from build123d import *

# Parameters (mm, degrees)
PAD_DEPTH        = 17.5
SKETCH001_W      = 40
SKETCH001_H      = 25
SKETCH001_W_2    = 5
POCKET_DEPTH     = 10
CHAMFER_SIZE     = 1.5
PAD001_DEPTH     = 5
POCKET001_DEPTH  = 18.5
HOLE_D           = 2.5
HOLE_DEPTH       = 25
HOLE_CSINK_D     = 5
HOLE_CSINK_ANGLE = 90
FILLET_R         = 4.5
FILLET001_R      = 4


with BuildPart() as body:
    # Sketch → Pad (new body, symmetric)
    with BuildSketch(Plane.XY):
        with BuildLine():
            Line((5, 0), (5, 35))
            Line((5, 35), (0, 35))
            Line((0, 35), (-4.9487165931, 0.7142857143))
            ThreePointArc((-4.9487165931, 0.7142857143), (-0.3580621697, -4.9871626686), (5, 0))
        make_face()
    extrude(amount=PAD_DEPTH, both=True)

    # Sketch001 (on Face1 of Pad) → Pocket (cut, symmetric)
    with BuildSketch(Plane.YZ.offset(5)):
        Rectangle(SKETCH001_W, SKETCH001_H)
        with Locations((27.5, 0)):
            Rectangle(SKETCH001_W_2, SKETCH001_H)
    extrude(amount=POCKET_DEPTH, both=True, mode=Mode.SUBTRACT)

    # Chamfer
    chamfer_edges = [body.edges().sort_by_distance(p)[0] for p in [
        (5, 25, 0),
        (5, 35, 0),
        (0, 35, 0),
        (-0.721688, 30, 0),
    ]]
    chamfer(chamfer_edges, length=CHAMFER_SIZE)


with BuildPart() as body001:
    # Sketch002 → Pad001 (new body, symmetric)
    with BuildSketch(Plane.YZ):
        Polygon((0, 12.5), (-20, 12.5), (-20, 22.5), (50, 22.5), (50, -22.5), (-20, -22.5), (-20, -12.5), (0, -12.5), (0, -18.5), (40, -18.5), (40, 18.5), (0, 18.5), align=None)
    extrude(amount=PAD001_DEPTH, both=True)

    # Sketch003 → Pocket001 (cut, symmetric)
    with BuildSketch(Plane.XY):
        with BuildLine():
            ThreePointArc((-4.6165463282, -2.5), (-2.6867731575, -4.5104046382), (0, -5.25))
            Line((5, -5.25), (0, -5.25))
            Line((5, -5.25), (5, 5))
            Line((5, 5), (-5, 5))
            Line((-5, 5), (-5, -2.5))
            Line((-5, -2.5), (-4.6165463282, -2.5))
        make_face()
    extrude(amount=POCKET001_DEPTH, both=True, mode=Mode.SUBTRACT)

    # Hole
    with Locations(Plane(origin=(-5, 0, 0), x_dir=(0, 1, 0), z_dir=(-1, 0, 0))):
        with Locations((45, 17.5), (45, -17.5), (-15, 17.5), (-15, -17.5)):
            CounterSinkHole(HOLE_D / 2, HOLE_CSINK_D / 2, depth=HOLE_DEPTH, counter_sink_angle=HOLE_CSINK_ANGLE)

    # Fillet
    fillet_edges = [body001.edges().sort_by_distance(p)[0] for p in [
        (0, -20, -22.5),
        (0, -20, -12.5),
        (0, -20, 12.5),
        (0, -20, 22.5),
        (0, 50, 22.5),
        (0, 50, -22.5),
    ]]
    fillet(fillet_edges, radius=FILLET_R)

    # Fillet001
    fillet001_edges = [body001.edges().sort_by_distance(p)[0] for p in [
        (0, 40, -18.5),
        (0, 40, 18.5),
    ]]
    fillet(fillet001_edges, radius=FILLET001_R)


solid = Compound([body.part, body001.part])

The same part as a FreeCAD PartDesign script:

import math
import FreeCAD as App
import Part
import Sketcher


def edges_at(feature, points):
    """Names of the edges that pass closest to the given points."""
    edges = feature.Shape.Edges
    near = lambda p: min(range(len(edges)), key=lambda i: edges[i].distToShape(Part.Vertex(*p))[0])
    return sorted({f"Edge{near(p) + 1}" for p in points})

doc = App.newDocument("Part")
body = doc.addObject("PartDesign::Body", "Body")

sketch1 = body.newObject("Sketcher::SketchObject", "Sketch")
sketch1.AttachmentSupport = (doc.getObject("XY_Plane"), [""])
sketch1.MapMode = "FlatFace"
sketch1.addGeometry([
    Part.LineSegment(App.Vector(5, 0, 0), App.Vector(5, 35, 0)),
    Part.LineSegment(App.Vector(5, 35, 0), App.Vector(0, 35, 0)),
    Part.LineSegment(App.Vector(0, 35, 0), App.Vector(-5, 1, 0)),
    Part.ArcOfCircle(Part.Circle(App.Vector(0, 0, 0), App.Vector(0, 0, 1), 5), math.radians(172), math.radians(360)),
], False)
sketch1.addConstraint([
    Sketcher.Constraint("Coincident", 0, 2, 1, 1),
    Sketcher.Constraint("Coincident", 1, 2, 2, 1),
    Sketcher.Constraint("Tangent", 2, 2, 3, 1),
    Sketcher.Constraint("Tangent", 3, 2, 0, 1),
    Sketcher.Constraint("Vertical", 0),
    Sketcher.Constraint("Horizontal", 1),
    Sketcher.Constraint("Coincident", 3, 3, -1, 1),
    Sketcher.Constraint("PointOnObject", 1, 2, -2),
    Sketcher.Constraint("Radius", 3, 5.0),
    Sketcher.Constraint("DistanceY", 0, 1, 0, 2, 35.0),
])
pad1 = body.newObject("PartDesign::Pad", "Pad")
pad1.Profile = sketch1
pad1.Length = 35
pad1.Midplane = True

sketch2 = body.newObject("Sketcher::SketchObject", "Sketch001")
sketch2.AttachmentSupport = (doc.getObject("YZ_Plane"), [""])
sketch2.MapMode = "FlatFace"
sketch2.AttachmentOffset = App.Placement(App.Vector(0, 0, 5), App.Rotation())
sketch2.addGeometry([
    Part.LineSegment(App.Vector(-20, 12, 0), App.Vector(-20, -12, 0)),
    Part.LineSegment(App.Vector(-20, -12, 0), App.Vector(20, -12, 0)),
    Part.LineSegment(App.Vector(20, -12, 0), App.Vector(20, 12, 0)),
    Part.LineSegment(App.Vector(20, 12, 0), App.Vector(-20, 12, 0)),
    Part.LineSegment(App.Vector(25, 12, 0), App.Vector(25, -12, 0)),
    Part.LineSegment(App.Vector(25, -12, 0), App.Vector(30, -12, 0)),
    Part.LineSegment(App.Vector(30, -12, 0), App.Vector(30, 12, 0)),
    Part.LineSegment(App.Vector(30, 12, 0), App.Vector(25, 12, 0)),
], False)
sketch2.addConstraint([
    Sketcher.Constraint("Coincident", 0, 2, 1, 1),
    Sketcher.Constraint("Coincident", 1, 2, 2, 1),
    Sketcher.Constraint("Coincident", 2, 2, 3, 1),
    Sketcher.Constraint("Coincident", 3, 2, 0, 1),
    Sketcher.Constraint("Coincident", 4, 2, 5, 1),
    Sketcher.Constraint("Coincident", 5, 2, 6, 1),
    Sketcher.Constraint("Coincident", 6, 2, 7, 1),
    Sketcher.Constraint("Coincident", 7, 2, 4, 1),
    Sketcher.Constraint("Vertical", 0),
    Sketcher.Constraint("Horizontal", 1),
    Sketcher.Constraint("Vertical", 2),
    Sketcher.Constraint("Horizontal", 3),
    Sketcher.Constraint("Vertical", 4),
    Sketcher.Constraint("Horizontal", 5),
    Sketcher.Constraint("Vertical", 6),
    Sketcher.Constraint("Horizontal", 7),
    Sketcher.Constraint("Symmetric", 0, 2, 2, 2, -1, 1),
    Sketcher.Constraint("Horizontal", 1, 2, 4, 2),
    Sketcher.Constraint("Horizontal", 3, 2, 6, 2),
    Sketcher.Constraint("DistanceX", 1, 1, 1, 2, 40.0),
    Sketcher.Constraint("DistanceX", 5, 1, 5, 2, 5.0),
    Sketcher.Constraint("DistanceY", 0, 2, 0, 1, 25.0),
    Sketcher.Constraint("DistanceX", -1, 1, 4, 2, 25.0),
])
pocket1 = body.newObject("PartDesign::Pocket", "Pocket")
pocket1.Profile = sketch2
pocket1.Length = 20
pocket1.Midplane = True
doc.recompute()

chamfer = body.newObject("PartDesign::Chamfer", "Chamfer")
chamfer.Base = (pocket1, edges_at(pocket1, [
    (5, 25, 0),
    (5, 35, 0),
    (0, 35, 0),
    (-0.722, 30, 0),
]))
chamfer.Size = 1.5
body2 = doc.addObject("PartDesign::Body", "Body001")

sketch3 = body2.newObject("Sketcher::SketchObject", "Sketch002")
sketch3.AttachmentSupport = (doc.getObject("YZ_Plane001"), [""])
sketch3.MapMode = "FlatFace"
sketch3.addGeometry([
    Part.LineSegment(App.Vector(-20, 12, 0), App.Vector(0, 12, 0)),
    Part.LineSegment(App.Vector(0, 12, 0), App.Vector(0, 18, 0)),
    Part.LineSegment(App.Vector(0, 18, 0), App.Vector(40, 18, 0)),
    Part.LineSegment(App.Vector(40, 18, 0), App.Vector(40, -18, 0)),
    Part.LineSegment(App.Vector(40, -18, 0), App.Vector(0, -18, 0)),
    Part.LineSegment(App.Vector(0, -18, 0), App.Vector(0, -12, 0)),
    Part.LineSegment(App.Vector(0, -12, 0), App.Vector(-20, -12, 0)),
    Part.LineSegment(App.Vector(-20, -12, 0), App.Vector(-20, -22, 0)),
    Part.LineSegment(App.Vector(-20, -22, 0), App.Vector(50, -22, 0)),
    Part.LineSegment(App.Vector(50, -22, 0), App.Vector(50, 22, 0)),
    Part.LineSegment(App.Vector(50, 22, 0), App.Vector(-20, 22, 0)),
    Part.LineSegment(App.Vector(-20, 22, 0), App.Vector(-20, 12, 0)),
], False)
sketch3.addConstraint([
    Sketcher.Constraint("Coincident", 0, 2, 1, 1),
    Sketcher.Constraint("Coincident", 1, 2, 2, 1),
    Sketcher.Constraint("Coincident", 2, 2, 3, 1),
    Sketcher.Constraint("Coincident", 3, 2, 4, 1),
    Sketcher.Constraint("Coincident", 4, 2, 5, 1),
    Sketcher.Constraint("Coincident", 5, 2, 6, 1),
    Sketcher.Constraint("Coincident", 6, 2, 7, 1),
    Sketcher.Constraint("Coincident", 7, 2, 8, 1),
    Sketcher.Constraint("Coincident", 8, 2, 9, 1),
    Sketcher.Constraint("Coincident", 9, 2, 10, 1),
    Sketcher.Constraint("Coincident", 10, 2, 11, 1),
    Sketcher.Constraint("Coincident", 11, 2, 0, 1),
    Sketcher.Constraint("Horizontal", 0),
    Sketcher.Constraint("Vertical", 1),
    Sketcher.Constraint("Horizontal", 2),
    Sketcher.Constraint("Vertical", 3),
    Sketcher.Constraint("Horizontal", 4),
    Sketcher.Constraint("Vertical", 5),
    Sketcher.Constraint("Horizontal", 6),
    Sketcher.Constraint("Vertical", 7),
    Sketcher.Constraint("Horizontal", 8),
    Sketcher.Constraint("Vertical", 9),
    Sketcher.Constraint("Horizontal", 10),
    Sketcher.Constraint("Vertical", 11),
    Sketcher.Constraint("Symmetric", 1, 2, 4, 2, -1, 1),
    Sketcher.Constraint("Symmetric", 0, 2, 5, 2, -1),
    Sketcher.Constraint("Symmetric", 7, 2, 10, 2, -1),
    Sketcher.Constraint("DistanceX", 0, 1, 0, 2, 20.0),
    Sketcher.Constraint("DistanceX", 2, 1, 2, 2, 40.0),
    Sketcher.Constraint("DistanceX", 8, 1, 8, 2, 70.0),
    Sketcher.Constraint("DistanceY", 1, 1, 1, 2, 6.0),
    Sketcher.Constraint("DistanceY", 3, 2, 3, 1, 37.0),
    Sketcher.Constraint("DistanceY", 7, 2, 7, 1, 10.0),
])
pad2 = body2.newObject("PartDesign::Pad", "Pad001")
pad2.Profile = sketch3
pad2.Length = 10
pad2.Midplane = True

sketch4 = body2.newObject("Sketcher::SketchObject", "Sketch003")
sketch4.AttachmentSupport = (doc.getObject("XY_Plane001"), [""])
sketch4.MapMode = "FlatFace"
sketch4.addGeometry([
    Part.ArcOfCircle(Part.Circle(App.Vector(0, 0, 0), App.Vector(0, 0, 1), 5.25), math.radians(-152), math.radians(-90)),
    Part.LineSegment(App.Vector(0, -5.25, 0), App.Vector(5, -5.25, 0)),
    Part.LineSegment(App.Vector(5, -5.25, 0), App.Vector(5, 5, 0)),
    Part.LineSegment(App.Vector(5, 5, 0), App.Vector(-5, 5, 0)),
    Part.LineSegment(App.Vector(-5, 5, 0), App.Vector(-5, -2.5, 0)),
    Part.LineSegment(App.Vector(-5, -2.5, 0), App.Vector(-4.62, -2.5, 0)),
], False)
sketch4.addConstraint([
    Sketcher.Constraint("Tangent", 0, 2, 1, 1),
    Sketcher.Constraint("Coincident", 1, 2, 2, 1),
    Sketcher.Constraint("Coincident", 2, 2, 3, 1),
    Sketcher.Constraint("Coincident", 3, 2, 4, 1),
    Sketcher.Constraint("Coincident", 4, 2, 5, 1),
    Sketcher.Constraint("Coincident", 5, 2, 0, 1),
    Sketcher.Constraint("Horizontal", 1),
    Sketcher.Constraint("Vertical", 2),
    Sketcher.Constraint("Horizontal", 3),
    Sketcher.Constraint("Vertical", 4),
    Sketcher.Constraint("Horizontal", 5),
    Sketcher.Constraint("Coincident", 0, 3, -1, 1),
    Sketcher.Constraint("DistanceX", 1, 1, 1, 2, 5.0),
    Sketcher.Constraint("DistanceX", 3, 2, 3, 1, 10.0),
    Sketcher.Constraint("Radius", 0, 5.25),
    Sketcher.Constraint("DistanceY", 4, 2, 4, 1, 7.5),
    Sketcher.Constraint("DistanceY", -1, 1, 2, 2, 5.0),
])
pocket2 = body2.newObject("PartDesign::Pocket", "Pocket001")
pocket2.Profile = sketch4
pocket2.Length = 37
pocket2.Midplane = True

sketch5 = body2.newObject("Sketcher::SketchObject", "Sketch004")
sketch5.AttachmentSupport = (doc.getObject("YZ_Plane001"), [""])
sketch5.MapMode = "FlatFace"
sketch5.AttachmentOffset = App.Placement(App.Vector(0, 0, -5), App.Rotation())
sketch5.addGeometry([
    Part.Circle(App.Vector(45, -17.5, 0), App.Vector(0, 0, 1), 1.2),
    Part.Circle(App.Vector(45, 17.5, 0), App.Vector(0, 0, 1), 1.2),
    Part.Circle(App.Vector(-15, -17.5, 0), App.Vector(0, 0, 1), 1.2),
    Part.Circle(App.Vector(-15, 17.5, 0), App.Vector(0, 0, 1), 1.2),
], False)
sketch5.addConstraint([
    Sketcher.Constraint("Equal", 0, 1),
    Sketcher.Constraint("Equal", 1, 2),
    Sketcher.Constraint("Equal", 2, 3),
    Sketcher.Constraint("Symmetric", 0, 3, 1, 3, -1),
    Sketcher.Constraint("Symmetric", 2, 3, 3, 3, -1),
    Sketcher.Constraint("Horizontal", 0, 3, 2, 3),
    Sketcher.Constraint("Diameter", 0, 2.5),
    Sketcher.Constraint("DistanceX", -1, 1, 0, 3, 45.0),
    Sketcher.Constraint("DistanceX", 2, 3, -1, 1, 15.0),
    Sketcher.Constraint("DistanceY", 0, 3, 1, 3, 35.0),
])
doc.recompute()
hole = body2.newObject("PartDesign::Hole", "Hole")
hole.Profile = sketch5
hole.ThreadType = "None"
hole.Diameter = 2.5
hole.DepthType = "Dimension"
hole.Depth = 25
hole.DrillPoint = "Flat"
hole.HoleCutType = "Countersink"
hole.HoleCutDiameter = 5
hole.HoleCutCountersinkAngle = 90
hole.Reversed = True
doc.recompute()

fillet = body2.newObject("PartDesign::Fillet", "Fillet")
fillet.Base = (hole, edges_at(hole, [
    (0, -20, -22.5),
    (0, -20, -12.5),
    (0, -20, 12.5),
    (0, -20, 22.5),
    (0, 50, 22.5),
    (0, 50, -22.5),
]))
fillet.Radius = 4.5
doc.recompute()

fillet2 = body2.newObject("PartDesign::Fillet", "Fillet001")
fillet2.Base = (fillet, edges_at(fillet, [(0, 40, -18.5), (0, 40, 18.5)]))
fillet2.Radius = 4

doc.recompute()
